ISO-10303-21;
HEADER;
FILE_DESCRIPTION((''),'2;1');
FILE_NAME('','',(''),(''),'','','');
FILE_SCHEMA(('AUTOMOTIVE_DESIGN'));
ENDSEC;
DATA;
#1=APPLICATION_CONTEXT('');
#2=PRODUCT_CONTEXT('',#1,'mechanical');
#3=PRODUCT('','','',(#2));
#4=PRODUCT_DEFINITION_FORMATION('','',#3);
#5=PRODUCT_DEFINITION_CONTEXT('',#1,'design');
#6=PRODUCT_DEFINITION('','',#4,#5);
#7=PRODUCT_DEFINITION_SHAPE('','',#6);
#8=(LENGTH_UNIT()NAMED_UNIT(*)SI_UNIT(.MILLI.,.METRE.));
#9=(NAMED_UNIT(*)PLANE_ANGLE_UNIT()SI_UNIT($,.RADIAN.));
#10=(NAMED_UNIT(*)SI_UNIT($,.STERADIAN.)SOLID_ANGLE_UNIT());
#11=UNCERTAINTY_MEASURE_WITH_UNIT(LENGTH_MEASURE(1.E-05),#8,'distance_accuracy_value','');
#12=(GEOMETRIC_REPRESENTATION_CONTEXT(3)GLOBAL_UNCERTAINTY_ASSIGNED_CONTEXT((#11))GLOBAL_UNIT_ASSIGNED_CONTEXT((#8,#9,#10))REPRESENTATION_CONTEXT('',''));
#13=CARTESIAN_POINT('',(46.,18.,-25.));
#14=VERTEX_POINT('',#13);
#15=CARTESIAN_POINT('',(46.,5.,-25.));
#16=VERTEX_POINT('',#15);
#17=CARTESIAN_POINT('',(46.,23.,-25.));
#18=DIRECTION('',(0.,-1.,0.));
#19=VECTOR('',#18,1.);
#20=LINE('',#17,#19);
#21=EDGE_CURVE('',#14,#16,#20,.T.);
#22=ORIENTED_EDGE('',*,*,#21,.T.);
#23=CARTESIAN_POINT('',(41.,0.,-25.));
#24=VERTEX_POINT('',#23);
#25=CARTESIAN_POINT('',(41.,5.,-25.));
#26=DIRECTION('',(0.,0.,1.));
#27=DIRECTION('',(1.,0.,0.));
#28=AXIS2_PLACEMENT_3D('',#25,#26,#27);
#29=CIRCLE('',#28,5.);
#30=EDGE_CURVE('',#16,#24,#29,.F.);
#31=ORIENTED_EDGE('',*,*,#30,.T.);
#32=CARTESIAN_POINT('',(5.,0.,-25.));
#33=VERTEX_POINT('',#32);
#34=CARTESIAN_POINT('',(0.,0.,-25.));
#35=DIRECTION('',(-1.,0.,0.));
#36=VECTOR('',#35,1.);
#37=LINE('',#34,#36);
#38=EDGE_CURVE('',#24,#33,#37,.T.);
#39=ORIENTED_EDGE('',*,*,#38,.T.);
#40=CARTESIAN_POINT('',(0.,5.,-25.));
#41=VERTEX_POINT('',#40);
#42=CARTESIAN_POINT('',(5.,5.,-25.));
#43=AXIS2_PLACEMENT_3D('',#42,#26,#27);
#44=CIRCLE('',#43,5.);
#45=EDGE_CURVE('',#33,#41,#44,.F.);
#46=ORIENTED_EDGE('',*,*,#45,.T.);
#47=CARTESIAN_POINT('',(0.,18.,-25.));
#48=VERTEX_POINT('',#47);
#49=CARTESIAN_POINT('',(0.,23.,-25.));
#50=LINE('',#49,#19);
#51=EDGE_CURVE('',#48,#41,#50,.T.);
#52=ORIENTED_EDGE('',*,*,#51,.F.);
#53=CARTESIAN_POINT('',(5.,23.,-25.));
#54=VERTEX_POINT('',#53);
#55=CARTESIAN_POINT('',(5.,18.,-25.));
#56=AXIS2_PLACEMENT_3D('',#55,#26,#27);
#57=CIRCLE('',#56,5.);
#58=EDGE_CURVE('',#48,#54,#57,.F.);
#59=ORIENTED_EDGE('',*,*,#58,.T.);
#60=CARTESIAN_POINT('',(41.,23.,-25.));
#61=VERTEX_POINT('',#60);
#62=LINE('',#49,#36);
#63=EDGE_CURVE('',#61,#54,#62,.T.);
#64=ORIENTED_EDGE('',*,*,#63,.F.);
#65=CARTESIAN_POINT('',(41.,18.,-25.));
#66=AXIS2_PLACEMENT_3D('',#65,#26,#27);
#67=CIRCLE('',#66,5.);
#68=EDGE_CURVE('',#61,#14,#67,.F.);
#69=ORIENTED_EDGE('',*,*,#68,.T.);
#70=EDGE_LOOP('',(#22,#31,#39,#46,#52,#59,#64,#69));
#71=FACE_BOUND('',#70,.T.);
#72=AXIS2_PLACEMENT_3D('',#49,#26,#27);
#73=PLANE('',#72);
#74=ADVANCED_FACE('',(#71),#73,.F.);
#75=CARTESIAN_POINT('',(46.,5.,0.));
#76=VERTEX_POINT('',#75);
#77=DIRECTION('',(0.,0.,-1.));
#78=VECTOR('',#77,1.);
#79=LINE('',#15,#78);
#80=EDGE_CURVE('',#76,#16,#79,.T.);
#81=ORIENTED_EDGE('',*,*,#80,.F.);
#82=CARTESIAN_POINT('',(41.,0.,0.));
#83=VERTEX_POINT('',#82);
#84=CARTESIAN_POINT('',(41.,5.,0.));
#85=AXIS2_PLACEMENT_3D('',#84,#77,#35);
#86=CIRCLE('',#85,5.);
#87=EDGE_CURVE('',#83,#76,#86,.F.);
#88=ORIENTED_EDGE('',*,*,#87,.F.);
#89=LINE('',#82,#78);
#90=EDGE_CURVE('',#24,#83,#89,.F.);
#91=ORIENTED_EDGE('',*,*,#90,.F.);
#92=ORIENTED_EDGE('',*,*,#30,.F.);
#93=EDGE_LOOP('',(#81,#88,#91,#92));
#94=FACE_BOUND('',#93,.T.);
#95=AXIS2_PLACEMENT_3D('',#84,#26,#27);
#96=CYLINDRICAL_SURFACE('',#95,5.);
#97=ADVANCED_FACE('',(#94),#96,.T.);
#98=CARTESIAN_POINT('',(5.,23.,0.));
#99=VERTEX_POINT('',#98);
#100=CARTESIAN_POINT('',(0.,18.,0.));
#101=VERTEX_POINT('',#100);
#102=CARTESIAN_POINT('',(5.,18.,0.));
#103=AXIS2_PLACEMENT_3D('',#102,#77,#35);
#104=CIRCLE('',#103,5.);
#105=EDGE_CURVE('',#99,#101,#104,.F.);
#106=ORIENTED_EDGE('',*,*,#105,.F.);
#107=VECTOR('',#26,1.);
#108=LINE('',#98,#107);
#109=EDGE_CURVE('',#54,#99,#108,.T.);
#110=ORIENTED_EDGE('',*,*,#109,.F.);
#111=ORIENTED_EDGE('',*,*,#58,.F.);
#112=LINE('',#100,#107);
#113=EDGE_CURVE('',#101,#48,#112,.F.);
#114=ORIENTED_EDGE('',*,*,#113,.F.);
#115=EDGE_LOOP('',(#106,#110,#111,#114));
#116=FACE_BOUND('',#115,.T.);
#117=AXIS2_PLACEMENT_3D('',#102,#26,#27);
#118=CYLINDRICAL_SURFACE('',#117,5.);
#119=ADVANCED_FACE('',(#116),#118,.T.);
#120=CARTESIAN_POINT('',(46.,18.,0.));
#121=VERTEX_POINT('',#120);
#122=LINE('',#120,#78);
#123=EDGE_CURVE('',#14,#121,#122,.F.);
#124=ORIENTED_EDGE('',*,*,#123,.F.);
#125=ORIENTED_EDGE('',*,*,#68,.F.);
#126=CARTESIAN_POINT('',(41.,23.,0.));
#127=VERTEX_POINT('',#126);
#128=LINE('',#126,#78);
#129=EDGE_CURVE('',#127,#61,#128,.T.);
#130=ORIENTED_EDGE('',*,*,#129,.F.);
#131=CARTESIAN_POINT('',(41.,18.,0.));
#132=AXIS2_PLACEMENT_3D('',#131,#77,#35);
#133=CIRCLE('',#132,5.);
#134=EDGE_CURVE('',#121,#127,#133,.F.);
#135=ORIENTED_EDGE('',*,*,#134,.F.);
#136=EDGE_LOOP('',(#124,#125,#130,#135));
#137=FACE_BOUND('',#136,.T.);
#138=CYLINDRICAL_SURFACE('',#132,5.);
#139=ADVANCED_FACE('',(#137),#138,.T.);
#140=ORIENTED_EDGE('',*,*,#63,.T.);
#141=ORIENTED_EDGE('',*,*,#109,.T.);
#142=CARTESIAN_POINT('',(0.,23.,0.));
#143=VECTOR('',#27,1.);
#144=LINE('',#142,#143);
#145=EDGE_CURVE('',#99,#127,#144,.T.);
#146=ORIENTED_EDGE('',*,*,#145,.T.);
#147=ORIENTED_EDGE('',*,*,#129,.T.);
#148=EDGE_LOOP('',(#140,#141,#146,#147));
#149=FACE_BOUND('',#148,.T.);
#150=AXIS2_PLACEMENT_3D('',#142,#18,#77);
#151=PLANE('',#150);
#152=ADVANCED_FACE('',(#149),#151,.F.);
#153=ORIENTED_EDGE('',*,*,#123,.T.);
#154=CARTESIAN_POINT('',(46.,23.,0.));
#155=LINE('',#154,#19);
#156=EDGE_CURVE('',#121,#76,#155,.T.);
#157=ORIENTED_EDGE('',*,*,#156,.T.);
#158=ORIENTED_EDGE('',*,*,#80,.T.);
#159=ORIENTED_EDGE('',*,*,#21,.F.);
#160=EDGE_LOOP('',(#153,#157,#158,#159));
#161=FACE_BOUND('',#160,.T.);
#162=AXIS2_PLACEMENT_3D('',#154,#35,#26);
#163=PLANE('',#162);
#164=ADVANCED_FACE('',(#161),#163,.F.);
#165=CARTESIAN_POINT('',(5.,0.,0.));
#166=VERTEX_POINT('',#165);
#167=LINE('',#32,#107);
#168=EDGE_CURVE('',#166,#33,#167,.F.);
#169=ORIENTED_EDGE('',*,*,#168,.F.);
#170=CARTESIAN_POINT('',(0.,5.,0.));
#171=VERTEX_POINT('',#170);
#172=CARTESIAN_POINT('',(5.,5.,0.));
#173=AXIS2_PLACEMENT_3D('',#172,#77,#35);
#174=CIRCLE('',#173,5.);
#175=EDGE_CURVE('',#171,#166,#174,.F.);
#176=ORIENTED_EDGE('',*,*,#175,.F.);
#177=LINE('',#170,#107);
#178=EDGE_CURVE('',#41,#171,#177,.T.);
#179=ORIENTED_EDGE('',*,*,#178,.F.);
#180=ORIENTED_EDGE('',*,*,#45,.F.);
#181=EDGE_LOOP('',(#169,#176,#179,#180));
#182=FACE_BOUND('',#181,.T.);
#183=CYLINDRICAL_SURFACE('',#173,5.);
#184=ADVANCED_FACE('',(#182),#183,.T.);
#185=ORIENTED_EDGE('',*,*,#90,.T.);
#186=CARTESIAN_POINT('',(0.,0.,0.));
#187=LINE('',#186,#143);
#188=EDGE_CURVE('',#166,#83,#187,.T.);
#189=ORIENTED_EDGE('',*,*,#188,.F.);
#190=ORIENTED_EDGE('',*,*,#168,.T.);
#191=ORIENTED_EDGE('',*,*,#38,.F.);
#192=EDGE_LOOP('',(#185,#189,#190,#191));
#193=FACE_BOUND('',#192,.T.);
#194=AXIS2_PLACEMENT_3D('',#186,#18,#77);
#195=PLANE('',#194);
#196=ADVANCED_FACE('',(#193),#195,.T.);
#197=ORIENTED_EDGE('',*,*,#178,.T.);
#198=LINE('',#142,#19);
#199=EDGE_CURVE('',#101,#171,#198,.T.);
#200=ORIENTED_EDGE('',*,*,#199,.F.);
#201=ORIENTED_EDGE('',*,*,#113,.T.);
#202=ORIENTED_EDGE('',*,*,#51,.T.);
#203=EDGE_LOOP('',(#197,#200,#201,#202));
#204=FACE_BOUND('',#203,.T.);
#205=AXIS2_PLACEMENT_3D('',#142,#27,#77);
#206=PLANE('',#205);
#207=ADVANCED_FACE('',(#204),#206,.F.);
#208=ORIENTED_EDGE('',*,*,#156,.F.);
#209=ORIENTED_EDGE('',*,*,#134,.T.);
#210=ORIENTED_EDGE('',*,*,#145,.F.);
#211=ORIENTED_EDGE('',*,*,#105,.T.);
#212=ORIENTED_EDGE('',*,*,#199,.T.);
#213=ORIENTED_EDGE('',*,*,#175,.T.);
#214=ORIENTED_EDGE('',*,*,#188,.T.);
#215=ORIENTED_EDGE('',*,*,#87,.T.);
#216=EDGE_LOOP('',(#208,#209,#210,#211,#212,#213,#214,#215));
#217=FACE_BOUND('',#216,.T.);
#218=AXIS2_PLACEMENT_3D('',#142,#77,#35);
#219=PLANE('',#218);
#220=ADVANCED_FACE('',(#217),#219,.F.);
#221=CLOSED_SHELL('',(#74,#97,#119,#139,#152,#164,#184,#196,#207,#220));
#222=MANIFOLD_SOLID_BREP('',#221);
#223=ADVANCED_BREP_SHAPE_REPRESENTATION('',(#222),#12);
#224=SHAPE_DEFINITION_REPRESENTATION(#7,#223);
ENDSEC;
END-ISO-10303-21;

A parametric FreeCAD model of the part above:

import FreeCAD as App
import Part
import Sketcher

V = App.Vector


def edges_at(feature, points):
    """Names of the edges that pass closest to the given points."""
    edges = feature.Shape.Edges
    near = lambda p: min(range(len(edges)), key=lambda i: edges[i].distToShape(Part.Vertex(*p))[0])
    return sorted({f"Edge{near(p) + 1}" for p in points})


def add_polygon(sketch, points):
    """Adds a closed chain of lines whose ends are joined by coincident constraints."""
    first, n = sketch.GeometryCount, len(points)
    for a, b in zip(points, points[1:] + points[:1]):
        sketch.addGeometry(Part.LineSegment(App.Vector(*a, 0), App.Vector(*b, 0)), False)
    for i in range(n):
        sketch.addConstraint(Sketcher.Constraint("Coincident", first + i, 2, first + (i + 1) % n, 1))

doc = App.newDocument("Part")
body = doc.addObject("PartDesign::Body", "Body")

# Sketch on XZ plane
sketch1 = body.newObject("Sketcher::SketchObject", "Sketch")
sketch1.AttachmentSupport = (doc.getObject("XZ_Plane"), [""])
sketch1.MapMode = "FlatFace"
add_polygon(sketch1, [(0, -25), (0, 0), (46, 0), (46, -25)])  # lines 0-3
sketch1.addConstraint([
    Sketcher.Constraint("Vertical", 0),
    Sketcher.Constraint("Horizontal", 1),
    Sketcher.Constraint("Vertical", 2),
    Sketcher.Constraint("Horizontal", 3),
    Sketcher.Constraint("Coincident", 0, 2, -1, 1),
    Sketcher.Constraint("DistanceX", 1, 1, 1, 2, 46.0),
    Sketcher.Constraint("DistanceY", 0, 1, 0, 2, 25.0),
])
pad1 = body.newObject("PartDesign::Pad", "Pad")
pad1.Profile = sketch1
pad1.Length = 23
pad1.Reversed = True
doc.recompute()

fillet = body.newObject("PartDesign::Fillet", "Fillet")
fillet.Base = (pad1, edges_at(pad1, [
    (46, 23, -12.5),
    (0, 23, -12.5),
    (46, 0, -12.5),
    (0, 0, -12.5),
]))
fillet.Radius = 5

doc.recompute()
